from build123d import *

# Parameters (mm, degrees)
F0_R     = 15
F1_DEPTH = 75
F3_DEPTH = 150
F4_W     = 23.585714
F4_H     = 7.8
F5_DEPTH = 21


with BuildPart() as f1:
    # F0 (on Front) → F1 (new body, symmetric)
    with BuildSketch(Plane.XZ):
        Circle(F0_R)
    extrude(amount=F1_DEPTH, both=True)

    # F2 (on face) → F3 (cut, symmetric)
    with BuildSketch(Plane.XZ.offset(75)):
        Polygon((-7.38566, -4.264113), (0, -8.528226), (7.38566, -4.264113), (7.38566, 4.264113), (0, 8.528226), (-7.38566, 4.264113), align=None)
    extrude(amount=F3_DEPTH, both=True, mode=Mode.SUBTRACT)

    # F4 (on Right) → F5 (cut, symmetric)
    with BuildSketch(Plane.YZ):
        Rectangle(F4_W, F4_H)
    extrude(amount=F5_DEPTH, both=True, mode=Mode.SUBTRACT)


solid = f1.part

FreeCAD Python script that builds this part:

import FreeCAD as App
import Part
import Sketcher
Q = App.Units.Quantity

doc = App.newDocument("Part")
body = doc.addObject("PartDesign::Body", "Body")

sketch1 = body.newObject("Sketcher::SketchObject", "Sketch")
sketch1.AttachmentSupport = (doc.getObject("XZ_Plane"), [""])
sketch1.MapMode = "FlatFace"
sketch1.addGeometry(Part.Circle(App.Vector(0, 0, 0), App.Vector(0, 0, 1), 15), False)
sketch1.addConstraint([
    Sketcher.Constraint("Coincident", 0, 3, -1, 1),
    Sketcher.Constraint("Diameter", 0, 30.0),
])
pad1 = body.newObject("PartDesign::Pad", "Pad")
pad1.Profile = sketch1
pad1.Length = 150
pad1.Midplane = True

sketch2 = body.newObject("Sketcher::SketchObject", "Sketch001")
sketch2.AttachmentSupport = (doc.getObject("XZ_Plane"), [""])
sketch2.MapMode = "FlatFace"
sketch2.AttachmentOffset = App.Placement(App.Vector(0, 0, 75), App.Rotation())
sketch2.addGeometry([
    Part.LineSegment(App.Vector(-7.38566, -4.264113, 0), App.Vector(0, -8.528226, 0)),
    Part.LineSegment(App.Vector(0, -8.528226, 0), App.Vector(7.38566, -4.264113, 0)),
    Part.LineSegment(App.Vector(7.38566, -4.264113, 0), App.Vector(7.38566, 4.264113, 0)),
    Part.LineSegment(App.Vector(7.38566, 4.264113, 0), App.Vector(0, 8.528226, 0)),
    Part.LineSegment(App.Vector(0, 8.528226, 0), App.Vector(-7.38566, 4.264113, 0)),
    Part.LineSegment(App.Vector(-7.38566, 4.264113, 0), App.Vector(-7.38566, -4.264113, 0)),
], False)
sketch2.addConstraint([
    Sketcher.Constraint("Coincident", 0, 2, 1, 1),
    Sketcher.Constraint("Coincident", 1, 2, 2, 1),
    Sketcher.Constraint("Coincident", 2, 2, 3, 1),
    Sketcher.Constraint("Coincident", 3, 2, 4, 1),
    Sketcher.Constraint("Coincident", 4, 2, 5, 1),
    Sketcher.Constraint("Coincident", 5, 2, 0, 1),
    Sketcher.Constraint("Vertical", 2),
    Sketcher.Constraint("Vertical", 5),
    Sketcher.Constraint("Symmetric", 0, 2, 3, 2, -1, 1),
    Sketcher.Constraint("Symmetric", 1, 2, 4, 2, -1, 1),
    Sketcher.Constraint("PointOnObject", 0, 2, -2),
    Sketcher.Constraint("Parallel", 0, 3),
    Sketcher.Constraint("Horizontal", 2, 2, 4, 2),
    Sketcher.Constraint("Angle", 0, Q("-30.000001 deg")),
    Sketcher.Constraint("DistanceY", 2, 1, 2, 2, 8.528226),
    Sketcher.Constraint("DistanceX", -1, 1, 1, 2, 7.38566),
])
pocket1 = body.newObject("PartDesign::Pocket", "Pocket")
pocket1.Profile = sketch2
pocket1.Length = 300
pocket1.Midplane = True

sketch3 = body.newObject("Sketcher::SketchObject", "Sketch002")
sketch3.AttachmentSupport = (doc.getObject("YZ_Plane"), [""])
sketch3.MapMode = "FlatFace"
sketch3.addGeometry([
    Part.LineSegment(App.Vector(-11.792857, 3.9, 0), App.Vector(-11.792857, -3.9, 0)),
    Part.LineSegment(App.Vector(-11.792857, -3.9, 0), App.Vector(11.792857, -3.9, 0)),
    Part.LineSegment(App.Vector(11.792857, -3.9, 0), App.Vector(11.792857, 3.9, 0)),
    Part.LineSegment(App.Vector(11.792857, 3.9, 0), App.Vector(-11.792857, 3.9, 0)),
], False)
sketch3.addConstraint([
    Sketcher.Constraint("Coincident", 0, 2, 1, 1),
    Sketcher.Constraint("Coincident", 1, 2, 2, 1),
    Sketcher.Constraint("Coincident", 2, 2, 3, 1),
    Sketcher.Constraint("Coincident", 3, 2, 0, 1),
    Sketcher.Constraint("Vertical", 0),
    Sketcher.Constraint("Horizontal", 1),
    Sketcher.Constraint("Vertical", 2),
    Sketcher.Constraint("Horizontal", 3),
    Sketcher.Constraint("Symmetric", 0, 2, 2, 2, -1, 1),
    Sketcher.Constraint("DistanceY", 0, 2, 0, 1, 7.8),
    Sketcher.Constraint("DistanceX", 1, 1, 1, 2, 23.585714),
])
pocket2 = body.newObject("PartDesign::Pocket", "Pocket001")
pocket2.Profile = sketch3
pocket2.Length = 42
pocket2.Midplane = True

doc.recompute()
